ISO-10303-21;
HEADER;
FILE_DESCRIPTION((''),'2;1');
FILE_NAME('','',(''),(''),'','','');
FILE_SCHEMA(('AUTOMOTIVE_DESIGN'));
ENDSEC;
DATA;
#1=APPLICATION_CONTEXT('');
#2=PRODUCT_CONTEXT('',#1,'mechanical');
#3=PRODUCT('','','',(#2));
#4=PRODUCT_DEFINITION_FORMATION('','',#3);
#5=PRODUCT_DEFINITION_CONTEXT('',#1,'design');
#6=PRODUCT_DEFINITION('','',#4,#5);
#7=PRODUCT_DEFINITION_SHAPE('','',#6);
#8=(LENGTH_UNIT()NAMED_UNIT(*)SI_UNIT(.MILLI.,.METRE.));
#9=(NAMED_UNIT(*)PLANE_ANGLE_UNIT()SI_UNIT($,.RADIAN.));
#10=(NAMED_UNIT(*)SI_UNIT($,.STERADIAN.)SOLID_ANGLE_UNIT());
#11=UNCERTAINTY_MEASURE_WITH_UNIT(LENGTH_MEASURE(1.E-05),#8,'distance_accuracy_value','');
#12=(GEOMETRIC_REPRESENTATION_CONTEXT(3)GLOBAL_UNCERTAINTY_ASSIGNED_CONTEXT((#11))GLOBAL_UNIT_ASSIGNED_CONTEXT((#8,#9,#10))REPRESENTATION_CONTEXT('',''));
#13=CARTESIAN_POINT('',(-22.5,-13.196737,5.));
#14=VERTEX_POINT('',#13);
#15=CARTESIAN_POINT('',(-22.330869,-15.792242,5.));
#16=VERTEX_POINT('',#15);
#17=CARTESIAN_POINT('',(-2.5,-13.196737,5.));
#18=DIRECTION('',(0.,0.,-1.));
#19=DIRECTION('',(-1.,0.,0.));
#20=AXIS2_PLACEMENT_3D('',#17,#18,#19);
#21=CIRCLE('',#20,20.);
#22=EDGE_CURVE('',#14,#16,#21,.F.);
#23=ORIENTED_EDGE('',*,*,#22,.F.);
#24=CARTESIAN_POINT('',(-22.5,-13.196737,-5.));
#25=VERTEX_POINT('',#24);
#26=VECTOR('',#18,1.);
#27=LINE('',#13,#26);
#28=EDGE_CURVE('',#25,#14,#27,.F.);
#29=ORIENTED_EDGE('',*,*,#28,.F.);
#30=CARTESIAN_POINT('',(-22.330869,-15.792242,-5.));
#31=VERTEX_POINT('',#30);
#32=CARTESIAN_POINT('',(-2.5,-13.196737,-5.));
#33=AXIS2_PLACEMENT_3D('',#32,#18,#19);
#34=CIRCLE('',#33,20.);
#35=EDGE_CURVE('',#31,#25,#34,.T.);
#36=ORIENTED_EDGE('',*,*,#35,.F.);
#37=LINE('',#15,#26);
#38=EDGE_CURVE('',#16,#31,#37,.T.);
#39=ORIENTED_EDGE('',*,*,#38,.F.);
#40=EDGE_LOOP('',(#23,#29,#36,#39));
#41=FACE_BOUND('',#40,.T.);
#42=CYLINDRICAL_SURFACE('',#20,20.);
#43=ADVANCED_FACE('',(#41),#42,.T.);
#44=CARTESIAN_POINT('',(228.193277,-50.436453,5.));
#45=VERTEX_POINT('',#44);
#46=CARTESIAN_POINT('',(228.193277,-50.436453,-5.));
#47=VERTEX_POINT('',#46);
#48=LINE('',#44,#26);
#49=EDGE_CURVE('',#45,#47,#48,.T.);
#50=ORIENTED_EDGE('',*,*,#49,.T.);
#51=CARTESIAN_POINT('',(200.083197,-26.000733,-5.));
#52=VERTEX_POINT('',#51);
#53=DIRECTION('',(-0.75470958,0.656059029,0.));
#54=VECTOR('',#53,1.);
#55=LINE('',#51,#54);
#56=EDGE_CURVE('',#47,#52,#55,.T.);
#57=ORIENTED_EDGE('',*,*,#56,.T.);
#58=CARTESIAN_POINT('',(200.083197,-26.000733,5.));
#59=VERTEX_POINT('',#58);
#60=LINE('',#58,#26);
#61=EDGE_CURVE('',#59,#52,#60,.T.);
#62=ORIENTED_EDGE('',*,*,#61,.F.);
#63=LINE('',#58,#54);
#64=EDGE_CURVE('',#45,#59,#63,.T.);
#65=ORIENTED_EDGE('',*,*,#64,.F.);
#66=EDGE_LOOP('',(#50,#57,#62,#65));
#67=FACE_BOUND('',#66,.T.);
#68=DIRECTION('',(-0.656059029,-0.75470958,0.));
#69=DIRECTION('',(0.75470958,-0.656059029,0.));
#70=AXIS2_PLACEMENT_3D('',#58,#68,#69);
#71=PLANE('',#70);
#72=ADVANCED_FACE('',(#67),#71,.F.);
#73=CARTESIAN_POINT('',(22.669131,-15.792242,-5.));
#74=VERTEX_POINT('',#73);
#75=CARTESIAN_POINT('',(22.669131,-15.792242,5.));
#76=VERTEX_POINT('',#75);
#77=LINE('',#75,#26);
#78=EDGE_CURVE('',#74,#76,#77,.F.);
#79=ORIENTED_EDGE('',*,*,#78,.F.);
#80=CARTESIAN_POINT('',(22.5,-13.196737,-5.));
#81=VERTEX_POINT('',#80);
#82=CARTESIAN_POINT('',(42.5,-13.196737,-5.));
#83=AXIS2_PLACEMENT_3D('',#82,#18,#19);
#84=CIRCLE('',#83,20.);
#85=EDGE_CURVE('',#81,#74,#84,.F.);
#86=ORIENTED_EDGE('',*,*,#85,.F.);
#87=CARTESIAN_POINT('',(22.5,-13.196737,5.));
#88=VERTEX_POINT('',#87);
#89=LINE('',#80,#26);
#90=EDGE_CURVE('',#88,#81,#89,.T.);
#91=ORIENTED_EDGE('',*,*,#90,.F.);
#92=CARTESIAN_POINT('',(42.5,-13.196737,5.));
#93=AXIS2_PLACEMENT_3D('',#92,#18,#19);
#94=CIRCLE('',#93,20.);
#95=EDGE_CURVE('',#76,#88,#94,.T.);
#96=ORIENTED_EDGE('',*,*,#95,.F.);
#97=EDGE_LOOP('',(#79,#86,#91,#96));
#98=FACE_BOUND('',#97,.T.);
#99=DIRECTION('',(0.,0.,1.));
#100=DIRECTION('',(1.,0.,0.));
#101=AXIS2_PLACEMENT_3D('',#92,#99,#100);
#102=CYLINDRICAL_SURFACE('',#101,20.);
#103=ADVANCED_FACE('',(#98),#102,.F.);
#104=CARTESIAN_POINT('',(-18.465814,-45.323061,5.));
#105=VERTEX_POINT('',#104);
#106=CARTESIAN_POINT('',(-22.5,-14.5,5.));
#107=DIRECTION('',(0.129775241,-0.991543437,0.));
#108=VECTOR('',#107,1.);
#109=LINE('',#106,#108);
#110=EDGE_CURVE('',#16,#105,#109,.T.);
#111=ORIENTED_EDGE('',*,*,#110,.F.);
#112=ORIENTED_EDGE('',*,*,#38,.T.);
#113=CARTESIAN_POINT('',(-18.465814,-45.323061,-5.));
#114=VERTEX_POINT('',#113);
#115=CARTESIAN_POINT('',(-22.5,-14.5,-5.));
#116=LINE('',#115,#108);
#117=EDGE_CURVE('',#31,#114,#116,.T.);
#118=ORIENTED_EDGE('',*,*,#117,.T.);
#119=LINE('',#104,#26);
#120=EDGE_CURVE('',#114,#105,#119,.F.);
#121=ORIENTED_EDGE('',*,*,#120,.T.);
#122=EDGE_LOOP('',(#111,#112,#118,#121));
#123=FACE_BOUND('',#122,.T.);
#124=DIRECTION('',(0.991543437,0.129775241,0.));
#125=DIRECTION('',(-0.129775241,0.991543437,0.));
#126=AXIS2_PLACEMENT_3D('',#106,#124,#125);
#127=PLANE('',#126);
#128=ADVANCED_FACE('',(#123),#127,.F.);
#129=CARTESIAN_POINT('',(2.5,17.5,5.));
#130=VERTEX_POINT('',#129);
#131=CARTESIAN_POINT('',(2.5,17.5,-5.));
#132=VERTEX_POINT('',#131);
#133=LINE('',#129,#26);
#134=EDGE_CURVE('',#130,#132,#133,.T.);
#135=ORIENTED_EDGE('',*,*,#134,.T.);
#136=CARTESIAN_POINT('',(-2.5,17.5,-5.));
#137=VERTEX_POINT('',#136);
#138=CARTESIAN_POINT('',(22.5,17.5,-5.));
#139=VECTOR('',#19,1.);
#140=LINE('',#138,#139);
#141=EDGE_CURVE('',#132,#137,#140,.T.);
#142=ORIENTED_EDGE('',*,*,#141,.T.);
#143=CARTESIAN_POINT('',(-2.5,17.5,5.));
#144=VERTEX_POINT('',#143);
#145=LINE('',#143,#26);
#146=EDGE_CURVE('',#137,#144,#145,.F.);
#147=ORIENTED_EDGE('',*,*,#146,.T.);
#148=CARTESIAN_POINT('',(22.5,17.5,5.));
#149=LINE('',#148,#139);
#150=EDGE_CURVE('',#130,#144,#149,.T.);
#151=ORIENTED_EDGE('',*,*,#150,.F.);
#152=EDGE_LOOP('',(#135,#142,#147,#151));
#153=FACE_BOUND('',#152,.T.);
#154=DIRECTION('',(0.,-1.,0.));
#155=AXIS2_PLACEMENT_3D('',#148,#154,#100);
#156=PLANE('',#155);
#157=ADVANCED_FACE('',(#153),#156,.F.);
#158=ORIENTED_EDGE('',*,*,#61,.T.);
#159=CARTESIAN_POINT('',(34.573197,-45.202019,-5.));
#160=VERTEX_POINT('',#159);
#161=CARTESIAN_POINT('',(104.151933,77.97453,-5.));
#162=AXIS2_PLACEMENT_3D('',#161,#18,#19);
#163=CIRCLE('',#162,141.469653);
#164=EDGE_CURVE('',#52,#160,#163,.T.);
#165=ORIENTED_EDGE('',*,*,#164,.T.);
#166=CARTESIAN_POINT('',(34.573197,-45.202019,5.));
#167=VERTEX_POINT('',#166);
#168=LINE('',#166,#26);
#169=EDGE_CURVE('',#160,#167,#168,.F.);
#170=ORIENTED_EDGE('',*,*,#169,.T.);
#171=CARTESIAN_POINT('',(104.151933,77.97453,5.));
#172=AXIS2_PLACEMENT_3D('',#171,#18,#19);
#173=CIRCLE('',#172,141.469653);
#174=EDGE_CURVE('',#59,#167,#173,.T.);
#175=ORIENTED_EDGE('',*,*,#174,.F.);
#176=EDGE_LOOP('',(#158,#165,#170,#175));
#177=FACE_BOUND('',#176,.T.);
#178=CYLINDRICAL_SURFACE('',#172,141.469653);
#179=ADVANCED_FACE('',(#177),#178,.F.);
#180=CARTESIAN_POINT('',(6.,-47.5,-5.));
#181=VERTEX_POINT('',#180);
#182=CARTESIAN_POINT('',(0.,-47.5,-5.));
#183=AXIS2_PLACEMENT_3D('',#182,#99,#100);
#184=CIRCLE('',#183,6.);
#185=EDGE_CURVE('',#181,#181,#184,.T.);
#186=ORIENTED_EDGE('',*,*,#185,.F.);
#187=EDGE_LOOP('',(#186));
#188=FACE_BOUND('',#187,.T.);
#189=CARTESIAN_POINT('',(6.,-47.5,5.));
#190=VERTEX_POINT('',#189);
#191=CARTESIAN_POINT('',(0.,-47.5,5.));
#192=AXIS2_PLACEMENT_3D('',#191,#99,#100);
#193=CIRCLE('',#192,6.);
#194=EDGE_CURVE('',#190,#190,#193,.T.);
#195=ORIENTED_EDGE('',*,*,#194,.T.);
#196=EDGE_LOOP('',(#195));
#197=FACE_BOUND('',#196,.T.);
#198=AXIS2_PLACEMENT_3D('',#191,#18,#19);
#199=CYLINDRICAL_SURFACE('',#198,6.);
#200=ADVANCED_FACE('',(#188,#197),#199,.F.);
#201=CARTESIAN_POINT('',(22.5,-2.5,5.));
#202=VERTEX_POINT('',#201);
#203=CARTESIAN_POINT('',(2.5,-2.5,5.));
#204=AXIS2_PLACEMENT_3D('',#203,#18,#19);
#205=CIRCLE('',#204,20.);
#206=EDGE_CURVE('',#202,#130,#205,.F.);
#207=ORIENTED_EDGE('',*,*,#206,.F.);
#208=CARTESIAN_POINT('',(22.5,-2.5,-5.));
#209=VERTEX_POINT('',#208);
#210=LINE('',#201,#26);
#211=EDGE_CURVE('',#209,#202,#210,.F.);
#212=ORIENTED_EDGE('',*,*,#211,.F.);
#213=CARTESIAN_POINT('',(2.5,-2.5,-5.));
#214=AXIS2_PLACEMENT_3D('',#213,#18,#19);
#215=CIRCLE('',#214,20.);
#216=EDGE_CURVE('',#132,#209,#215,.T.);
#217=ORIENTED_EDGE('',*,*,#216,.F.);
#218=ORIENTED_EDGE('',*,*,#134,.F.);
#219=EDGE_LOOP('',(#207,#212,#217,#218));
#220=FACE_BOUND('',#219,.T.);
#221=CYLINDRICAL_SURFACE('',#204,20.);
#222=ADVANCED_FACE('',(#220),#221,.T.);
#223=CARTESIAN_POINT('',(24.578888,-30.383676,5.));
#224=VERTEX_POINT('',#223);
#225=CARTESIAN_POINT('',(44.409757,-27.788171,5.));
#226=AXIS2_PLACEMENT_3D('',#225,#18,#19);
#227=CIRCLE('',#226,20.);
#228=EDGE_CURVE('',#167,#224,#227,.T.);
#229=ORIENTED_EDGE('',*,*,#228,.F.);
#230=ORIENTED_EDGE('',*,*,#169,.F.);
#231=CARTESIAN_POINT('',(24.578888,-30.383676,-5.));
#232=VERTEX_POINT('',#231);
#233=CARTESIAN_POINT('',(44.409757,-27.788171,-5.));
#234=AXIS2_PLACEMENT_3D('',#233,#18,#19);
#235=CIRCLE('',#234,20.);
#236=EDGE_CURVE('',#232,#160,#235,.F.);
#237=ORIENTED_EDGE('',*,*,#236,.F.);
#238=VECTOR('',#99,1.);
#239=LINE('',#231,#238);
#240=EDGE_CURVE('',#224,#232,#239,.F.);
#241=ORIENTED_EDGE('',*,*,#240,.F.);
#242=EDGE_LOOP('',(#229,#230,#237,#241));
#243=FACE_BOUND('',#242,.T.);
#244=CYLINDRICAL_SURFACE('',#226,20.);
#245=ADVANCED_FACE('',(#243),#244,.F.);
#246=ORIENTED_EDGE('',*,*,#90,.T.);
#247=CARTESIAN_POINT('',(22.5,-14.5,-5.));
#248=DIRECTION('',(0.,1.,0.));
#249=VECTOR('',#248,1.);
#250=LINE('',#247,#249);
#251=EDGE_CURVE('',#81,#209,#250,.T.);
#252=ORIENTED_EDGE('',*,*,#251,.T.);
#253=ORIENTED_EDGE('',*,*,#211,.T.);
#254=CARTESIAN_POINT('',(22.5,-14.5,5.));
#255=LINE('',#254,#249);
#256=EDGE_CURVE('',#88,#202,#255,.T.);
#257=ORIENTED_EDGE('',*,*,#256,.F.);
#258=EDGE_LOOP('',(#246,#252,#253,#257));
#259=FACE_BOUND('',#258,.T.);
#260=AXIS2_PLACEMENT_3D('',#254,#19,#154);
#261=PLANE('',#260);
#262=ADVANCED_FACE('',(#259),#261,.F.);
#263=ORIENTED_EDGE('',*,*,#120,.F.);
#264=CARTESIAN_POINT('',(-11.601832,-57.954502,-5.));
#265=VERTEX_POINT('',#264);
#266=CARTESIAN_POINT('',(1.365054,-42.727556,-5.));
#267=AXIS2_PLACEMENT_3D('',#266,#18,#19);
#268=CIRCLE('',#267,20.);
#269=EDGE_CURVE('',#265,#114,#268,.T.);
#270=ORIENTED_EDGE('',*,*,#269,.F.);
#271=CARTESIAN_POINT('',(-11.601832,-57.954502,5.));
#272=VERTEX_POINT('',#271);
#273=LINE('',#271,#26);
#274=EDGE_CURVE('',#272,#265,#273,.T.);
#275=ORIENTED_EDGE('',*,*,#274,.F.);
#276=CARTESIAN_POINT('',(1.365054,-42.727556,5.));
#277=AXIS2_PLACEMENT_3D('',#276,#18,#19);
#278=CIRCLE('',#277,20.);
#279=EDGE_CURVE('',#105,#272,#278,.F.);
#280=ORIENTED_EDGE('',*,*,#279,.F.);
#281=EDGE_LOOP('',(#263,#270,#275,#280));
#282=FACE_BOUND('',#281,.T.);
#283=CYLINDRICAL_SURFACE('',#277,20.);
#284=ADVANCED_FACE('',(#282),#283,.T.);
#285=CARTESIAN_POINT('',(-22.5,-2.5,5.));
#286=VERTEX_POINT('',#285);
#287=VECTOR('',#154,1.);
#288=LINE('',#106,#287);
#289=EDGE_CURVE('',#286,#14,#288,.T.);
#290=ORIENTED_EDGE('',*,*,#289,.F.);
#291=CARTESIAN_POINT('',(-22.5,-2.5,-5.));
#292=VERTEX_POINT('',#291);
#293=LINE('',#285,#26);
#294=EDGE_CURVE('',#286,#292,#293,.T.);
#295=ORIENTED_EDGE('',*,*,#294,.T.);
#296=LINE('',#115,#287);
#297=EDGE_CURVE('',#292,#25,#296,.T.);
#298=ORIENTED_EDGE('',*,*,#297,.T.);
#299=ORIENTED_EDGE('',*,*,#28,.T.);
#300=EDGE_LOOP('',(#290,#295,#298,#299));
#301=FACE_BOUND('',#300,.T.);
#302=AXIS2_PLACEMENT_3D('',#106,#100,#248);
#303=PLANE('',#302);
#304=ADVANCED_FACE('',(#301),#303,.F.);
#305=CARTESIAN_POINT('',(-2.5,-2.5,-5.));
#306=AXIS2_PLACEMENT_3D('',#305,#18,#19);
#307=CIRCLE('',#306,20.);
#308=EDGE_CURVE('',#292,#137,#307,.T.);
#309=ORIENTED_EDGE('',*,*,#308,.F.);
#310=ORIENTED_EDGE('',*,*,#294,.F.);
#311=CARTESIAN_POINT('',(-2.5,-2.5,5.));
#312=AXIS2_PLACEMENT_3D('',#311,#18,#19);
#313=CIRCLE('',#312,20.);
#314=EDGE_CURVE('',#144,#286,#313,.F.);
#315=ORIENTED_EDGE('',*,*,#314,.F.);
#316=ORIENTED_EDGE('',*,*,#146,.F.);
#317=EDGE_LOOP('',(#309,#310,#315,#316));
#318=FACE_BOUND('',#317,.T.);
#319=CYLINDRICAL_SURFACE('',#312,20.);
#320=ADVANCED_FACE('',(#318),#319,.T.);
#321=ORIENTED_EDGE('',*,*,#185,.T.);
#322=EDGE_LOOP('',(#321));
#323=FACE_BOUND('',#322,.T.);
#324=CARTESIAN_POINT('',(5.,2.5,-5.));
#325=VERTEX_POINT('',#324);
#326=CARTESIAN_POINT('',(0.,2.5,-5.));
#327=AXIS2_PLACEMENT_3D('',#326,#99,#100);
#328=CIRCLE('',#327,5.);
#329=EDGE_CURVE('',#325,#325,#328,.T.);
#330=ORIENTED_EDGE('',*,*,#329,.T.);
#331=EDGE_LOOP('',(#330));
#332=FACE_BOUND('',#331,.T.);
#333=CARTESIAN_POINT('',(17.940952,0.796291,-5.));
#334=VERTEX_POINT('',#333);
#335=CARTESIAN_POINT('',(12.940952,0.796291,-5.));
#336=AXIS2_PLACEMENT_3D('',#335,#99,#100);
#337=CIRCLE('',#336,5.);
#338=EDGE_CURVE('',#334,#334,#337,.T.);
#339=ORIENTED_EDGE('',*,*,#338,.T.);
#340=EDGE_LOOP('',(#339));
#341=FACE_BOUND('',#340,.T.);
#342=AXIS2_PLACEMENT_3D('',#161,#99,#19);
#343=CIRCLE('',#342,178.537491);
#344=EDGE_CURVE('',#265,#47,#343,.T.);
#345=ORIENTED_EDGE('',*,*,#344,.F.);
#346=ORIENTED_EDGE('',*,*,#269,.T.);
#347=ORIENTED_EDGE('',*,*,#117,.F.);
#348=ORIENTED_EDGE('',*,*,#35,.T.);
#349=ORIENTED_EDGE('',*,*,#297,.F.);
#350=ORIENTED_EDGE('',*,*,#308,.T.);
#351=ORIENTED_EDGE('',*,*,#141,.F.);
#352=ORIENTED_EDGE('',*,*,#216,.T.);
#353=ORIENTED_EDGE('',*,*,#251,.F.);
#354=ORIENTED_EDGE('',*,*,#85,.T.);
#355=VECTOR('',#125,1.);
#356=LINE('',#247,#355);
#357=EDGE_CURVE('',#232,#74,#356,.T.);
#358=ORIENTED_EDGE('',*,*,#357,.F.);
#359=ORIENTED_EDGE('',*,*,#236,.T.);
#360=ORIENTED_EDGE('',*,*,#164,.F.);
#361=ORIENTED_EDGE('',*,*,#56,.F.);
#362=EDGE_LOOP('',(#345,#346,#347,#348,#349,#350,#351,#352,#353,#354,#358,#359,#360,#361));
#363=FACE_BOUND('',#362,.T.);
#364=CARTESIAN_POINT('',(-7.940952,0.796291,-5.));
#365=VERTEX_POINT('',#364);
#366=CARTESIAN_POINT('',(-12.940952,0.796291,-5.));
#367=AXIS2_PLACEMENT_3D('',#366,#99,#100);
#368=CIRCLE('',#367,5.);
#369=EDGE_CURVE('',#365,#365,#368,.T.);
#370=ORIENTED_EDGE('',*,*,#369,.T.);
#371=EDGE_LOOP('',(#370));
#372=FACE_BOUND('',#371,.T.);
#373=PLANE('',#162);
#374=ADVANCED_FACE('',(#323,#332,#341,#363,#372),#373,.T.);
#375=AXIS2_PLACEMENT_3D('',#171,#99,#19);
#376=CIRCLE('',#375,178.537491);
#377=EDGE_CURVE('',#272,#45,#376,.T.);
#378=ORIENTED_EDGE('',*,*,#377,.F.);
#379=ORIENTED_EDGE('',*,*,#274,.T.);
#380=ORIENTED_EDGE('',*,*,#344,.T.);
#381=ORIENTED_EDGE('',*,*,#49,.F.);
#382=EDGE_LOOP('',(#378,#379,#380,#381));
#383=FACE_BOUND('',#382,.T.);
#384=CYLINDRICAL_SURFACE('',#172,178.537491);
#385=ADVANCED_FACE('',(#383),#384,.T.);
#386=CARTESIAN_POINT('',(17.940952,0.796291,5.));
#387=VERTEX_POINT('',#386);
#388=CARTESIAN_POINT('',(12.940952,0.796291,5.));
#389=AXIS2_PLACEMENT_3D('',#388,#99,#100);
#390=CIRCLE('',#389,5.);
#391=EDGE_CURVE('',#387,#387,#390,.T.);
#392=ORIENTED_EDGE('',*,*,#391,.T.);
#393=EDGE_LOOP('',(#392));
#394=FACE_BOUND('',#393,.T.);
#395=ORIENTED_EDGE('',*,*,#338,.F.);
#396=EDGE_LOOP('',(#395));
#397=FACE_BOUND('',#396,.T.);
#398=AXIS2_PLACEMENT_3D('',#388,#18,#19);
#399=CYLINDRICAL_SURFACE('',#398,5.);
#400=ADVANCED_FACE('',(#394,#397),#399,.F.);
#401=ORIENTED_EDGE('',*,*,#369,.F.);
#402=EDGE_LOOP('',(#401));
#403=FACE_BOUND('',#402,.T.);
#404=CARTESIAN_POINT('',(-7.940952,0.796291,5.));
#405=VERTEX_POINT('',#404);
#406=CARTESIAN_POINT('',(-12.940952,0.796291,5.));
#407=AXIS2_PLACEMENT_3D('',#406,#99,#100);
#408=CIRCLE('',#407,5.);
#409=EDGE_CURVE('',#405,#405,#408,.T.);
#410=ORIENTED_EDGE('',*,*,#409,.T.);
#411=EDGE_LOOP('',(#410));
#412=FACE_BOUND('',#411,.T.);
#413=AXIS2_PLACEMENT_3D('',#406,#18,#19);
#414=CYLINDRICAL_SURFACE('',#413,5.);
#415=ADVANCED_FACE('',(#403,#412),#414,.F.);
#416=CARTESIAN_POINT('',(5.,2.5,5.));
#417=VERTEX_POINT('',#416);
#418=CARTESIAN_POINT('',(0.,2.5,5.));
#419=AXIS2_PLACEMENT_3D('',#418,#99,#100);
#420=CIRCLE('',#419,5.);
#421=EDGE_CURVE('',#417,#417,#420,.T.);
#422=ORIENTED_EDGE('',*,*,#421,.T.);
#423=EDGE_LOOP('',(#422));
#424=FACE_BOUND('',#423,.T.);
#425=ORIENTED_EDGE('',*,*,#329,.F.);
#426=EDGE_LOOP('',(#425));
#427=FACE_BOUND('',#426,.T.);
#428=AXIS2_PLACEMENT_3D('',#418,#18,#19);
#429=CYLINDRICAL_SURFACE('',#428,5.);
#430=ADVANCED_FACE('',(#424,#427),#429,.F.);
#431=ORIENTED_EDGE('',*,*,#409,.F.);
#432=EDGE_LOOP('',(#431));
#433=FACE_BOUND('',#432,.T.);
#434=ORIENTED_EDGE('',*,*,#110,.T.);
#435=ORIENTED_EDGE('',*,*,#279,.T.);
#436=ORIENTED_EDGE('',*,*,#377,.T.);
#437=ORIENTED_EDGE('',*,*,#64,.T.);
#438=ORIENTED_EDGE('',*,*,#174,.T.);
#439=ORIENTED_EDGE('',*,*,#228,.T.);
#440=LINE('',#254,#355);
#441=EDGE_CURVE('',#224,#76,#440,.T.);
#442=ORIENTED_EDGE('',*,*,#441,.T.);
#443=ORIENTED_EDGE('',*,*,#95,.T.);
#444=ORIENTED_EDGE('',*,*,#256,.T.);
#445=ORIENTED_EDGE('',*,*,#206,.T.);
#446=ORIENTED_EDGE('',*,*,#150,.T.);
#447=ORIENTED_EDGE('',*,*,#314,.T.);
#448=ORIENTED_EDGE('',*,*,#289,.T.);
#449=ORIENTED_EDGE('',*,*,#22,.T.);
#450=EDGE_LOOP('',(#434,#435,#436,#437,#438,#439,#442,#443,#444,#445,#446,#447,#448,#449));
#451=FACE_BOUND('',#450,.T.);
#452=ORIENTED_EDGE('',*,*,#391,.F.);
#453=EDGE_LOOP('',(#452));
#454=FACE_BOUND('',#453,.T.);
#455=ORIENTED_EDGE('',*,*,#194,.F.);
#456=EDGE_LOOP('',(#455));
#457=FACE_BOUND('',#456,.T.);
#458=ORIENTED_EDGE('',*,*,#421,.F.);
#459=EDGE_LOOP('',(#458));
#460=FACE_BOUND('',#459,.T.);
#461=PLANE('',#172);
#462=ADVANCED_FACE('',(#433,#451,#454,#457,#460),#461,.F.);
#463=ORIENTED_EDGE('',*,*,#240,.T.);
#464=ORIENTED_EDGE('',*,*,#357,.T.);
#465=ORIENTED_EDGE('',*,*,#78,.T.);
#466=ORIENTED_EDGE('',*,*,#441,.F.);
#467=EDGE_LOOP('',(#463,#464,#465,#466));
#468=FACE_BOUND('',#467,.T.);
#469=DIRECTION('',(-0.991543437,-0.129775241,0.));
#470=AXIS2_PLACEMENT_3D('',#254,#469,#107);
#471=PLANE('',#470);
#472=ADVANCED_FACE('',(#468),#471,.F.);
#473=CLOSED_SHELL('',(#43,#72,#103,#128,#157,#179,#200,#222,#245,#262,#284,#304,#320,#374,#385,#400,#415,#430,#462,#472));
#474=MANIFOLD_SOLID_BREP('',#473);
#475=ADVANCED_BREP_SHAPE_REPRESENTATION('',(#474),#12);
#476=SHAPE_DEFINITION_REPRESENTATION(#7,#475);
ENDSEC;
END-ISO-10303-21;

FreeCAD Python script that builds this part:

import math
import FreeCAD as App
import Part
import Sketcher

V = App.Vector
Q = App.Units.Quantity


def edges_at(feature, points):
    """Names of the edges that pass closest to the given points."""
    edges = feature.Shape.Edges
    near = lambda p: min(range(len(edges)), key=lambda i: edges[i].distToShape(Part.Vertex(*p))[0])
    return sorted({f"Edge{near(p) + 1}" for p in points})

doc = App.newDocument("Part")
body = doc.addObject("PartDesign::Body", "Body")

# Sketch on XY plane
sketch1 = body.newObject("Sketcher::SketchObject", "Sketch")
sketch1.AttachmentSupport = (doc.getObject("XY_Plane"), [""])
sketch1.MapMode = "FlatFace"
sketch1.addGeometry(Part.LineSegment(V(228, -50, 0), V(200, -26, 0)), False)
sketch1.addGeometry(Part.ArcOfCircle(Part.Circle(V(104, 78, 0), V(0, 0, 1), 141), math.radians(-124), math.radians(-47)), False)
sketch1.addGeometry(Part.LineSegment(V(26, -40, 0), V(22, -14, 0)), False)
sketch1.addGeometry(Part.LineSegment(V(22, -14, 0), V(22, 18, 0)), False)
sketch1.addGeometry(Part.LineSegment(V(22, 18, 0), V(-22, 18, 0)), False)
sketch1.addGeometry(Part.LineSegment(V(-22, 18, 0), V(-22, -14, 0)), False)
sketch1.addGeometry(Part.LineSegment(V(-22, -14, 0), V(-18, -53, 0)), False)
sketch1.addGeometry(Part.ArcOfCircle(Part.Circle(V(104, 78, 0), V(0, 0, 1), 179), math.radians(-133), math.radians(-46)), False)
sketch1.addGeometry(Part.Circle(V(0, -48, 0), V(0, 0, 1), 6), False)
sketch1.addGeometry(Part.Circle(V(13, 1, 0), V(0, 0, 1), 5), False)
sketch1.addGeometry(Part.Circle(V(0, 2, 0), V(0, 0, 1), 5), False)
sketch1.addGeometry(Part.Circle(V(-13, 1, 0), V(0, 0, 1), 5), False)
sketch1.addConstraint(Sketcher.Constraint("Coincident", 0, 2, 1, 2))
sketch1.addConstraint(Sketcher.Constraint("Coincident", 1, 1, 2, 1))
sketch1.addConstraint(Sketcher.Constraint("Coincident", 2, 2, 3, 1))
sketch1.addConstraint(Sketcher.Constraint("Coincident", 3, 2, 4, 1))
sketch1.addConstraint(Sketcher.Constraint("Coincident", 4, 2, 5, 1))
sketch1.addConstraint(Sketcher.Constraint("Coincident", 5, 2, 6, 1))
sketch1.addConstraint(Sketcher.Constraint("Coincident", 6, 2, 7, 1))
sketch1.addConstraint(Sketcher.Constraint("Coincident", 7, 2, 0, 1))
sketch1.addConstraint(Sketcher.Constraint("Vertical", 3))
sketch1.addConstraint(Sketcher.Constraint("Horizontal", 4))
sketch1.addConstraint(Sketcher.Constraint("Vertical", 5))
sketch1.addConstraint(Sketcher.Constraint("Coincident", 7, 3, 1, 3))
sketch1.addConstraint(Sketcher.Constraint("Equal", 9, 10))
sketch1.addConstraint(Sketcher.Constraint("Equal", 10, 11))
sketch1.addConstraint(Sketcher.Constraint("Symmetric", 9, 3, 11, 3, -2))
sketch1.addConstraint(Sketcher.Constraint("Symmetric", 2, 2, 5, 2, -2))
sketch1.addConstraint(Sketcher.Constraint("PointOnObject", 8, 3, -2))
sketch1.addConstraint(Sketcher.Constraint("PointOnObject", 10, 3, -2))
sketch1.addConstraint(Sketcher.Constraint("Parallel", 2, 6))
sketch1.addConstraint(Sketcher.Constraint("Diameter", 8, Q("12 mm")))
sketch1.addConstraint(Sketcher.Constraint("Diameter", 9, Q("10 mm")))
sketch1.addConstraint(Sketcher.Constraint("DistanceX", 4, 2, 4, 1, Q("45 mm")))
sketch1.addConstraint(Sketcher.Constraint("DistanceY", 3, 1, 3, 2, Q("32 mm")))
sketch1.addConstraint(Sketcher.Constraint("Angle", 0, Q("139 deg")))
sketch1.addConstraint(Sketcher.Constraint("DistanceY", 8, 3, 10, 3, Q("50 mm")))
sketch1.addConstraint(Sketcher.Constraint("DistanceY", 2, 2, 10, 3, Q("17 mm")))
sketch1.addConstraint(Sketcher.Constraint("DistanceX", 5, 2, 6, 2, Q("5 mm")))
sketch1.addConstraint(Sketcher.Constraint("DistanceY", 8, 3, -1, 1, Q("47.5 mm")))
sketch1.addConstraint(Sketcher.Constraint("Radius", 7, Q("178.537491 mm")))
sketch1.addConstraint(Sketcher.Constraint("Radius", 1, Q("141.469653 mm")))
sketch1.addConstraint(Sketcher.Constraint("DistanceY", 1, 1, -1, 1, Q("39.825901 mm")))
sketch1.addConstraint(Sketcher.Constraint("Distance", 6, Q("38.52815 mm")))
sketch1.addConstraint(Sketcher.Constraint("DistanceY", -1, 1, 9, 3, Q("0.796291 mm")))
sketch1.addConstraint(Sketcher.Constraint("DistanceX", 9, 3, 1, 3, Q("91.210981 mm")))
sketch1.addConstraint(Sketcher.Constraint("DistanceX", 1, 1, 7, 2, Q("202.378571 mm")))
pad1 = body.newObject("PartDesign::Pad", "Pad")
pad1.Profile = sketch1
pad1.Length = 10
pad1.Midplane = True
doc.recompute()

fillet = body.newObject("PartDesign::Fillet", "Fillet")
fillet.Base = (pad1, edges_at(pad1, [
    (-17.5, -52.702, 0),
    (-22.5, -14.5, 0),
    (-22.5, 17.5, 0),
    (22.5, 17.5, 0),
    (22.5, -14.5, 0),
    (25.815, -39.826, 0),
]))
fillet.Radius = 20

doc.recompute()
